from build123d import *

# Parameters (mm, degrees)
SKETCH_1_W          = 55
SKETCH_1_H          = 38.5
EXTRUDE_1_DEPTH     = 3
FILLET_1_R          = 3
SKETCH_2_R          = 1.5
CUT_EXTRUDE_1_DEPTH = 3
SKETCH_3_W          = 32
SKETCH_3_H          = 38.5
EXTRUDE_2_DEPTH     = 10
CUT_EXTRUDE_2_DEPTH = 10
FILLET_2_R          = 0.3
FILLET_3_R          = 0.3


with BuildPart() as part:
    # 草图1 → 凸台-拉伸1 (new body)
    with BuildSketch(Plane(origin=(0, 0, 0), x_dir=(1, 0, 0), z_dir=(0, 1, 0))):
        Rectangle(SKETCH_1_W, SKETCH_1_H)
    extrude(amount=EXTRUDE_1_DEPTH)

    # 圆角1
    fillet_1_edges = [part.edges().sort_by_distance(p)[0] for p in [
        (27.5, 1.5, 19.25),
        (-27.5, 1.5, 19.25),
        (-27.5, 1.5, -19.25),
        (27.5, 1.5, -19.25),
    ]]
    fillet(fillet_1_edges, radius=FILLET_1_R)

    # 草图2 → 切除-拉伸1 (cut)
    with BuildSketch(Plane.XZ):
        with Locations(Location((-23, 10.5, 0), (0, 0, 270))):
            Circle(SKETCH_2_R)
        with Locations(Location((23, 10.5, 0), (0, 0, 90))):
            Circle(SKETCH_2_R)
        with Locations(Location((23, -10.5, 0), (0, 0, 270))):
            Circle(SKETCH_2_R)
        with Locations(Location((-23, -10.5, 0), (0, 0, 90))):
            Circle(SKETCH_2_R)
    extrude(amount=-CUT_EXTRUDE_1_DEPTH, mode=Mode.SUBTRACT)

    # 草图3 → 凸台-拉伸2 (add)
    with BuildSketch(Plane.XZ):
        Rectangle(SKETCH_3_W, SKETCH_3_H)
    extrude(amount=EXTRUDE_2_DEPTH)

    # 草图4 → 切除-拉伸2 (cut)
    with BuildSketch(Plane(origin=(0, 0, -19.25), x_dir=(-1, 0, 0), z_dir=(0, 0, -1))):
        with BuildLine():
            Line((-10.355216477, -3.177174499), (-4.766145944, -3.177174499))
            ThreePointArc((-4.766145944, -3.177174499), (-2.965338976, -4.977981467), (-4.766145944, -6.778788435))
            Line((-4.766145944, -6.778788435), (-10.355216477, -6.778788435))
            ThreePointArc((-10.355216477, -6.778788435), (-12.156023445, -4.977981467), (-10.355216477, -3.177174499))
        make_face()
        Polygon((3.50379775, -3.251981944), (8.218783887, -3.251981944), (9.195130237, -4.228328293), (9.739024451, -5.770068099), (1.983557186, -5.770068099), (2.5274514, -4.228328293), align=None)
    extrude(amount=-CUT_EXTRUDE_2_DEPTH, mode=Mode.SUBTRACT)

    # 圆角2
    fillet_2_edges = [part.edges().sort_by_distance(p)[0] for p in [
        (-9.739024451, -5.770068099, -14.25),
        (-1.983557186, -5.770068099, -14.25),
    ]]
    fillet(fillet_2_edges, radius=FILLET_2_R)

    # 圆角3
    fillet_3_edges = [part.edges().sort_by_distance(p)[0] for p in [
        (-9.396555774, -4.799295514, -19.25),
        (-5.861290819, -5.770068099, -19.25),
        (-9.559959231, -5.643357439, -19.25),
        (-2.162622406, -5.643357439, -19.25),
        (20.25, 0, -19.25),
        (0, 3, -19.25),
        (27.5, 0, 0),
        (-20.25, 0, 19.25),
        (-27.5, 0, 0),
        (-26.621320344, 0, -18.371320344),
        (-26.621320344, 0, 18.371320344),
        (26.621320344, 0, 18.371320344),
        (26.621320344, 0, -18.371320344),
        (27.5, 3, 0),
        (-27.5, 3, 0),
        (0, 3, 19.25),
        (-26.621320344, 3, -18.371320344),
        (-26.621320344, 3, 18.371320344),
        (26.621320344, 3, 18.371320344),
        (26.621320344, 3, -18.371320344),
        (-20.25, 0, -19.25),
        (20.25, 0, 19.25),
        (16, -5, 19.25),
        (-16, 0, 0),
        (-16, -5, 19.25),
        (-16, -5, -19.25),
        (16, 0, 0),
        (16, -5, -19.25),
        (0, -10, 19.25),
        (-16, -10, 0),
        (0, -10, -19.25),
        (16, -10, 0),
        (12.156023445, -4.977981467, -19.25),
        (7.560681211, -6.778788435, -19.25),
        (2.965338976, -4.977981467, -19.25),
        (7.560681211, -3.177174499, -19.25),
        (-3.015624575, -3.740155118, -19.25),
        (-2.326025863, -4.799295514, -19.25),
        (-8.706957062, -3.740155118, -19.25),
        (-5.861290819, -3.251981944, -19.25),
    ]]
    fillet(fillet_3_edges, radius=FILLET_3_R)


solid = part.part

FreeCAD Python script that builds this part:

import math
import FreeCAD as App
import Part
import Sketcher

V = App.Vector
Q = App.Units.Quantity


def edges_at(feature, points):
    """Names of the edges that pass closest to the given points."""
    edges = feature.Shape.Edges
    near = lambda p: min(range(len(edges)), key=lambda i: edges[i].distToShape(Part.Vertex(*p))[0])
    return sorted({f"Edge{near(p) + 1}" for p in points})


def add_polygon(sketch, points):
    """Adds a closed chain of lines whose ends are joined by coincident constraints."""
    first, n = sketch.GeometryCount, len(points)
    for a, b in zip(points, points[1:] + points[:1]):
        sketch.addGeometry(Part.LineSegment(App.Vector(*a, 0), App.Vector(*b, 0)), False)
    for i in range(n):
        sketch.addConstraint(Sketcher.Constraint("Coincident", first + i, 2, first + (i + 1) % n, 1))

doc = App.newDocument("Part")
body = doc.addObject("PartDesign::Body", "Body")

sketch1 = doc.addObject("Sketcher::SketchObject", "Sketch")
body.addObject(sketch1)
sketch1.AttachmentSupport = (doc.XZ_Plane, [""])
sketch1.MapMode = "FlatFace"
add_polygon(sketch1, [(-27.5, -19.25), (-27.5, 19.25), (27.5, 19.25), (27.5, -19.25)])
sketch1.addConstraint(Sketcher.Constraint("Vertical", 0))
sketch1.addConstraint(Sketcher.Constraint("Horizontal", 1))
sketch1.addConstraint(Sketcher.Constraint("Vertical", 2))
sketch1.addConstraint(Sketcher.Constraint("Horizontal", 3))
sketch1.addConstraint(Sketcher.Constraint("Symmetric", 0, 2, 2, 2, -1, 1))
sketch1.addConstraint(Sketcher.Constraint("DistanceX", 1, 1, 1, 2, Q("55 mm")))
sketch1.addConstraint(Sketcher.Constraint("DistanceY", 0, 1, 0, 2, Q("38.5 mm")))
pad1 = doc.addObject("PartDesign::Pad", "Pad")
body.addObject(pad1)
pad1.Profile = sketch1
pad1.Length = 3
pad1.Reversed = True
doc.recompute()

fillet = doc.addObject("PartDesign::Fillet", "Fillet")
body.addObject(fillet)
fillet.Base = (pad1, edges_at(pad1, [
    (27.5, 1.5, 19.25),
    (-27.5, 1.5, 19.25),
    (-27.5, 1.5, -19.25),
    (27.5, 1.5, -19.25),
]))
fillet.Radius = 3

sketch2 = doc.addObject("Sketcher::SketchObject", "Sketch001")
body.addObject(sketch2)
sketch2.AttachmentSupport = (doc.XZ_Plane, [""])
sketch2.MapMode = "FlatFace"
sketch2.addGeometry(Part.Circle(V(-23, 10.5, 0), V(0, 0, 1), 1.5), False)
sketch2.addGeometry(Part.Circle(V(23, 10.5, 0), V(0, 0, 1), 1.5), False)
sketch2.addGeometry(Part.Circle(V(23, -10.5, 0), V(0, 0, 1), 1.5), False)
sketch2.addGeometry(Part.Circle(V(-23, -10.5, 0), V(0, 0, 1), 1.5), False)
sketch2.addConstraint(Sketcher.Constraint("Equal", 0, 1))
sketch2.addConstraint(Sketcher.Constraint("Equal", 1, 2))
sketch2.addConstraint(Sketcher.Constraint("Equal", 2, 3))
sketch2.addConstraint(Sketcher.Constraint("Symmetric", 0, 3, 2, 3, -1, 1))
sketch2.addConstraint(Sketcher.Constraint("Symmetric", 1, 3, 3, 3, -1, 1))
sketch2.addConstraint(Sketcher.Constraint("Symmetric", 0, 3, 1, 3, -2))
sketch2.addConstraint(Sketcher.Constraint("Diameter", 0, Q("3 mm")))
sketch2.addConstraint(Sketcher.Constraint("DistanceX", 0, 3, -1, 1, Q("23 mm")))
sketch2.addConstraint(Sketcher.Constraint("DistanceY", 2, 3, 1, 3, Q("21 mm")))
pocket1 = doc.addObject("PartDesign::Pocket", "Pocket")
body.addObject(pocket1)
pocket1.Profile = sketch2
pocket1.Length = 3

sketch3 = doc.addObject("Sketcher::SketchObject", "Sketch002")
body.addObject(sketch3)
sketch3.AttachmentSupport = (doc.XZ_Plane, [""])
sketch3.MapMode = "FlatFace"
add_polygon(sketch3, [(-16, 19.25), (-16, -19.25), (16, -19.25), (16, 19.25)])
sketch3.addConstraint(Sketcher.Constraint("Vertical", 0))
sketch3.addConstraint(Sketcher.Constraint("Horizontal", 1))
sketch3.addConstraint(Sketcher.Constraint("Vertical", 2))
sketch3.addConstraint(Sketcher.Constraint("Horizontal", 3))
sketch3.addConstraint(Sketcher.Constraint("Symmetric", 0, 2, 2, 2, -1, 1))
sketch3.addConstraint(Sketcher.Constraint("DistanceX", 1, 1, 1, 2, Q("32 mm")))
sketch3.addConstraint(Sketcher.Constraint("DistanceY", 0, 2, 0, 1, Q("38.5 mm")))
pad2 = doc.addObject("PartDesign::Pad", "Pad001")
body.addObject(pad2)
pad2.Profile = sketch3
pad2.Length = 10

sketch4 = doc.addObject("Sketcher::SketchObject", "Sketch003")
body.addObject(sketch4)
sketch4.AttachmentSupport = (doc.XY_Plane, [""])
sketch4.MapMode = "FlatFace"
sketch4.AttachmentOffset = App.Placement(V(0, 0, -19.25), App.Rotation())
sketch4.addGeometry(Part.LineSegment(V(4.766146, -3.177174, 0), V(10.355216, -3.177174, 0)), False)
sketch4.addGeometry(Part.ArcOfCircle(Part.Circle(V(10.355216, -4.977981, 0), V(0, 0, 1), 1.800807), math.radians(-90), math.radians(90)), False)
sketch4.addGeometry(Part.LineSegment(V(10.355216, -6.778788, 0), V(4.766146, -6.778788, 0)), False)
sketch4.addGeometry(Part.ArcOfCircle(Part.Circle(V(4.766146, -4.977981, 0), V(0, 0, 1), 1.800807), math.radians(90), math.radians(270)), False)
add_polygon(sketch4, [(-8.218784, -3.251982), (-3.503798, -3.251982), (-2.527451, -4.228328), (-1.983557, -5.770068), (-9.739024, -5.770068), (-9.19513, -4.228328)])
sketch4.addConstraint(Sketcher.Constraint("Tangent", 0, 2, 1, 2))
sketch4.addConstraint(Sketcher.Constraint("Tangent", 1, 1, 2, 1))
sketch4.addConstraint(Sketcher.Constraint("Tangent", 2, 2, 3, 2))
sketch4.addConstraint(Sketcher.Constraint("Tangent", 3, 1, 0, 1))
sketch4.addConstraint(Sketcher.Constraint("Horizontal", 0))
sketch4.addConstraint(Sketcher.Constraint("Horizontal", 2))
sketch4.addConstraint(Sketcher.Constraint("Horizontal", 4))
sketch4.addConstraint(Sketcher.Constraint("Horizontal", 7))
sketch4.addConstraint(Sketcher.Constraint("Perpendicular", 5, 9))
sketch4.addConstraint(Sketcher.Constraint("Horizontal", 5, 2, 8, 2))
sketch4.addConstraint(Sketcher.Constraint("Equal", 6, 8))
sketch4.addConstraint(Sketcher.Constraint("Equal", 5, 9))
sketch4.addConstraint(Sketcher.Constraint("Radius", 1, Q("1.800807 mm")))
sketch4.addConstraint(Sketcher.Constraint("DistanceY", 3, 3, 4, 2, Q("1.726 mm")))
sketch4.addConstraint(Sketcher.Constraint("DistanceX", 0, 1, 0, 2, Q("5.589071 mm")))
sketch4.addConstraint(Sketcher.Constraint("DistanceX", 4, 1, 4, 2, Q("4.714986 mm")))
sketch4.addConstraint(Sketcher.Constraint("DistanceX", 7, 2, 7, 1, Q("7.755467 mm")))
sketch4.addConstraint(Sketcher.Constraint("DistanceY", 1, 3, -1, 1, Q("4.977981 mm")))
sketch4.addConstraint(Sketcher.Constraint("DistanceX", 5, 2, -1, 1, Q("2.527451 mm")))
sketch4.addConstraint(Sketcher.Constraint("DistanceY", 5, 2, -1, 1, Q("4.228328 mm")))
sketch4.addConstraint(Sketcher.Constraint("DistanceY", 6, 2, -1, 1, Q("5.770068 mm")))
sketch4.addConstraint(Sketcher.Constraint("DistanceX", 7, 2, 3, 3, Q("14.50517 mm")))
pocket2 = doc.addObject("PartDesign::Pocket", "Pocket001")
body.addObject(pocket2)
pocket2.Profile = sketch4
pocket2.Length = 10
pocket2.Reversed = True
doc.recompute()

fillet2 = doc.addObject("PartDesign::Fillet", "Fillet001")
body.addObject(fillet2)
fillet2.Base = (pocket2, edges_at(pocket2, [(-9.739, -5.77, -14.25), (-1.984, -5.77, -14.25)]))
fillet2.Radius = 0.3
doc.recompute()

fillet3 = doc.addObject("PartDesign::Fillet", "Fillet002")
body.addObject(fillet3)
fillet3.Base = (fillet2, edges_at(fillet2, [
    (-9.397, -4.799, -19.25),
    (-5.861, -5.77, -19.25),
    (-9.56, -5.643, -19.25),
    (-2.163, -5.643, -19.25),
    (20.25, 0, -19.25),
    (0, 3, -19.25),
    (27.5, 0, 0),
    (-20.25, 0, 19.25),
    (-27.5, 0, 0),
    (-26.621, 0, -18.371),
    (-26.621, 0, 18.371),
    (26.621, 0, 18.371),
    (26.621, 0, -18.371),
    (27.5, 3, 0),
    (-27.5, 3, 0),
    (0, 3, 19.25),
    (-26.621, 3, -18.371),
    (-26.621, 3, 18.371),
    (26.621, 3, 18.371),
    (26.621, 3, -18.371),
    (-20.25, 0, -19.25),
    (20.25, 0, 19.25),
    (16, -5, 19.25),
    (-16, 0, 0),
    (-16, -5, 19.25),
    (-16, -5, -19.25),
    (16, 0, 0),
    (16, -5, -19.25),
    (0, -10, 19.25),
    (-16, -10, 0),
    (0, -10, -19.25),
    (16, -10, 0),
    (12.156, -4.978, -19.25),
    (7.561, -6.779, -19.25),
    (2.965, -4.978, -19.25),
    (7.561, -3.177, -19.25),
    (-3.016, -3.74, -19.25),
    (-2.326, -4.799, -19.25),
    (-8.707, -3.74, -19.25),
    (-5.861, -3.252, -19.25),
]))
fillet3.Radius = 0.3

doc.recompute()
